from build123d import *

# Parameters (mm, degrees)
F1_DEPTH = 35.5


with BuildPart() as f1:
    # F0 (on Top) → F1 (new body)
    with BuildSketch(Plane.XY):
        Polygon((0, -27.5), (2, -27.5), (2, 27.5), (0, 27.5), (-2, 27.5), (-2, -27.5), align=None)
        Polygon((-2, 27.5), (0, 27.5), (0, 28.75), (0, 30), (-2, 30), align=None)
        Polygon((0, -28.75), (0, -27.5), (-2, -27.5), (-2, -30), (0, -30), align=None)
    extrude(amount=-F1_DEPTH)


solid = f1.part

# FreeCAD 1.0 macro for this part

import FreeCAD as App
import Part
import Sketcher
Q = App.Units.Quantity

doc = App.newDocument("Part")
params = doc.addObject("Spreadsheet::Sheet", "Params")
for row, (alias, value) in enumerate([
    ("sketch1_width", "2 mm"),
    ("sketch1_height", "55 mm"),
    ("sketch1_height2", "60 mm"),
    ("pad1_length", "35.5 mm"),
], start=1):
    params.set(f"A{row}", alias)
    params.set(f"B{row}", "=" + value)
    params.setAlias(f"B{row}", alias)

body = doc.addObject("PartDesign::Body", "Body")

sketch1 = body.newObject("Sketcher::SketchObject", "Sketch")
sketch1.AttachmentSupport = (doc.getObject("XY_Plane"), [""])
sketch1.MapMode = "FlatFace"
sketch1.addGeometry(Part.LineSegment(App.Vector(2, -27.5, 0), App.Vector(2, 27.5, 0)), False)
sketch1.addGeometry(Part.LineSegment(App.Vector(2, 27.5, 0), App.Vector(0, 27.5, 0)), False)
sketch1.addGeometry(Part.LineSegment(App.Vector(0, 27.5, 0), App.Vector(0, 30, 0)), False)
sketch1.addGeometry(Part.LineSegment(App.Vector(0, 30, 0), App.Vector(-2, 30, 0)), False)
sketch1.addGeometry(Part.LineSegment(App.Vector(-2, 30, 0), App.Vector(-2, -30, 0)), False)
sketch1.addGeometry(Part.LineSegment(App.Vector(-2, -30, 0), App.Vector(0, -30, 0)), False)
sketch1.addGeometry(Part.LineSegment(App.Vector(0, -30, 0), App.Vector(0, -27.5, 0)), False)
sketch1.addGeometry(Part.LineSegment(App.Vector(0, -27.5, 0), App.Vector(2, -27.5, 0)), False)
sketch1.addConstraint(Sketcher.Constraint("Coincident", 0, 2, 1, 1))
sketch1.addConstraint(Sketcher.Constraint("Coincident", 1, 2, 2, 1))
sketch1.addConstraint(Sketcher.Constraint("Coincident", 2, 2, 3, 1))
sketch1.addConstraint(Sketcher.Constraint("Coincident", 3, 2, 4, 1))
sketch1.addConstraint(Sketcher.Constraint("Coincident", 4, 2, 5, 1))
sketch1.addConstraint(Sketcher.Constraint("Coincident", 5, 2, 6, 1))
sketch1.addConstraint(Sketcher.Constraint("Coincident", 6, 2, 7, 1))
sketch1.addConstraint(Sketcher.Constraint("Coincident", 7, 2, 0, 1))
sketch1.addConstraint(Sketcher.Constraint("Vertical", 0))
sketch1.addConstraint(Sketcher.Constraint("Horizontal", 1))
sketch1.addConstraint(Sketcher.Constraint("Vertical", 2))
sketch1.addConstraint(Sketcher.Constraint("Horizontal", 3))
sketch1.addConstraint(Sketcher.Constraint("Vertical", 4))
sketch1.addConstraint(Sketcher.Constraint("Horizontal", 5))
sketch1.addConstraint(Sketcher.Constraint("Vertical", 6))
sketch1.addConstraint(Sketcher.Constraint("Horizontal", 7))
sketch1.addConstraint(Sketcher.Constraint("Symmetric", 2, 2, 5, 2, -1, 1))
sketch1.addConstraint(Sketcher.Constraint("Symmetric", 1, 2, 6, 2, -1))
sketch1.addConstraint(Sketcher.Constraint("Equal", 1, 3))
sketch1.addConstraint(Sketcher.Constraint("DistanceX", 1, 2, 1, 1, Q("2 mm")))
sketch1.addConstraint(Sketcher.Constraint("DistanceY", 0, 1, 0, 2, Q("55 mm")))
sketch1.addConstraint(Sketcher.Constraint("DistanceY", 4, 2, 4, 1, Q("60 mm")))
sketch1.setExpression("Constraints[19]", "Params.sketch1_width")
sketch1.setExpression("Constraints[20]", "Params.sketch1_height")
sketch1.setExpression("Constraints[21]", "Params.sketch1_height2")
pad1 = body.newObject("PartDesign::Pad", "Pad")
pad1.Profile = sketch1
pad1.setExpression("Length", "Params.pad1_length")
pad1.Reversed = True

doc.recompute()
